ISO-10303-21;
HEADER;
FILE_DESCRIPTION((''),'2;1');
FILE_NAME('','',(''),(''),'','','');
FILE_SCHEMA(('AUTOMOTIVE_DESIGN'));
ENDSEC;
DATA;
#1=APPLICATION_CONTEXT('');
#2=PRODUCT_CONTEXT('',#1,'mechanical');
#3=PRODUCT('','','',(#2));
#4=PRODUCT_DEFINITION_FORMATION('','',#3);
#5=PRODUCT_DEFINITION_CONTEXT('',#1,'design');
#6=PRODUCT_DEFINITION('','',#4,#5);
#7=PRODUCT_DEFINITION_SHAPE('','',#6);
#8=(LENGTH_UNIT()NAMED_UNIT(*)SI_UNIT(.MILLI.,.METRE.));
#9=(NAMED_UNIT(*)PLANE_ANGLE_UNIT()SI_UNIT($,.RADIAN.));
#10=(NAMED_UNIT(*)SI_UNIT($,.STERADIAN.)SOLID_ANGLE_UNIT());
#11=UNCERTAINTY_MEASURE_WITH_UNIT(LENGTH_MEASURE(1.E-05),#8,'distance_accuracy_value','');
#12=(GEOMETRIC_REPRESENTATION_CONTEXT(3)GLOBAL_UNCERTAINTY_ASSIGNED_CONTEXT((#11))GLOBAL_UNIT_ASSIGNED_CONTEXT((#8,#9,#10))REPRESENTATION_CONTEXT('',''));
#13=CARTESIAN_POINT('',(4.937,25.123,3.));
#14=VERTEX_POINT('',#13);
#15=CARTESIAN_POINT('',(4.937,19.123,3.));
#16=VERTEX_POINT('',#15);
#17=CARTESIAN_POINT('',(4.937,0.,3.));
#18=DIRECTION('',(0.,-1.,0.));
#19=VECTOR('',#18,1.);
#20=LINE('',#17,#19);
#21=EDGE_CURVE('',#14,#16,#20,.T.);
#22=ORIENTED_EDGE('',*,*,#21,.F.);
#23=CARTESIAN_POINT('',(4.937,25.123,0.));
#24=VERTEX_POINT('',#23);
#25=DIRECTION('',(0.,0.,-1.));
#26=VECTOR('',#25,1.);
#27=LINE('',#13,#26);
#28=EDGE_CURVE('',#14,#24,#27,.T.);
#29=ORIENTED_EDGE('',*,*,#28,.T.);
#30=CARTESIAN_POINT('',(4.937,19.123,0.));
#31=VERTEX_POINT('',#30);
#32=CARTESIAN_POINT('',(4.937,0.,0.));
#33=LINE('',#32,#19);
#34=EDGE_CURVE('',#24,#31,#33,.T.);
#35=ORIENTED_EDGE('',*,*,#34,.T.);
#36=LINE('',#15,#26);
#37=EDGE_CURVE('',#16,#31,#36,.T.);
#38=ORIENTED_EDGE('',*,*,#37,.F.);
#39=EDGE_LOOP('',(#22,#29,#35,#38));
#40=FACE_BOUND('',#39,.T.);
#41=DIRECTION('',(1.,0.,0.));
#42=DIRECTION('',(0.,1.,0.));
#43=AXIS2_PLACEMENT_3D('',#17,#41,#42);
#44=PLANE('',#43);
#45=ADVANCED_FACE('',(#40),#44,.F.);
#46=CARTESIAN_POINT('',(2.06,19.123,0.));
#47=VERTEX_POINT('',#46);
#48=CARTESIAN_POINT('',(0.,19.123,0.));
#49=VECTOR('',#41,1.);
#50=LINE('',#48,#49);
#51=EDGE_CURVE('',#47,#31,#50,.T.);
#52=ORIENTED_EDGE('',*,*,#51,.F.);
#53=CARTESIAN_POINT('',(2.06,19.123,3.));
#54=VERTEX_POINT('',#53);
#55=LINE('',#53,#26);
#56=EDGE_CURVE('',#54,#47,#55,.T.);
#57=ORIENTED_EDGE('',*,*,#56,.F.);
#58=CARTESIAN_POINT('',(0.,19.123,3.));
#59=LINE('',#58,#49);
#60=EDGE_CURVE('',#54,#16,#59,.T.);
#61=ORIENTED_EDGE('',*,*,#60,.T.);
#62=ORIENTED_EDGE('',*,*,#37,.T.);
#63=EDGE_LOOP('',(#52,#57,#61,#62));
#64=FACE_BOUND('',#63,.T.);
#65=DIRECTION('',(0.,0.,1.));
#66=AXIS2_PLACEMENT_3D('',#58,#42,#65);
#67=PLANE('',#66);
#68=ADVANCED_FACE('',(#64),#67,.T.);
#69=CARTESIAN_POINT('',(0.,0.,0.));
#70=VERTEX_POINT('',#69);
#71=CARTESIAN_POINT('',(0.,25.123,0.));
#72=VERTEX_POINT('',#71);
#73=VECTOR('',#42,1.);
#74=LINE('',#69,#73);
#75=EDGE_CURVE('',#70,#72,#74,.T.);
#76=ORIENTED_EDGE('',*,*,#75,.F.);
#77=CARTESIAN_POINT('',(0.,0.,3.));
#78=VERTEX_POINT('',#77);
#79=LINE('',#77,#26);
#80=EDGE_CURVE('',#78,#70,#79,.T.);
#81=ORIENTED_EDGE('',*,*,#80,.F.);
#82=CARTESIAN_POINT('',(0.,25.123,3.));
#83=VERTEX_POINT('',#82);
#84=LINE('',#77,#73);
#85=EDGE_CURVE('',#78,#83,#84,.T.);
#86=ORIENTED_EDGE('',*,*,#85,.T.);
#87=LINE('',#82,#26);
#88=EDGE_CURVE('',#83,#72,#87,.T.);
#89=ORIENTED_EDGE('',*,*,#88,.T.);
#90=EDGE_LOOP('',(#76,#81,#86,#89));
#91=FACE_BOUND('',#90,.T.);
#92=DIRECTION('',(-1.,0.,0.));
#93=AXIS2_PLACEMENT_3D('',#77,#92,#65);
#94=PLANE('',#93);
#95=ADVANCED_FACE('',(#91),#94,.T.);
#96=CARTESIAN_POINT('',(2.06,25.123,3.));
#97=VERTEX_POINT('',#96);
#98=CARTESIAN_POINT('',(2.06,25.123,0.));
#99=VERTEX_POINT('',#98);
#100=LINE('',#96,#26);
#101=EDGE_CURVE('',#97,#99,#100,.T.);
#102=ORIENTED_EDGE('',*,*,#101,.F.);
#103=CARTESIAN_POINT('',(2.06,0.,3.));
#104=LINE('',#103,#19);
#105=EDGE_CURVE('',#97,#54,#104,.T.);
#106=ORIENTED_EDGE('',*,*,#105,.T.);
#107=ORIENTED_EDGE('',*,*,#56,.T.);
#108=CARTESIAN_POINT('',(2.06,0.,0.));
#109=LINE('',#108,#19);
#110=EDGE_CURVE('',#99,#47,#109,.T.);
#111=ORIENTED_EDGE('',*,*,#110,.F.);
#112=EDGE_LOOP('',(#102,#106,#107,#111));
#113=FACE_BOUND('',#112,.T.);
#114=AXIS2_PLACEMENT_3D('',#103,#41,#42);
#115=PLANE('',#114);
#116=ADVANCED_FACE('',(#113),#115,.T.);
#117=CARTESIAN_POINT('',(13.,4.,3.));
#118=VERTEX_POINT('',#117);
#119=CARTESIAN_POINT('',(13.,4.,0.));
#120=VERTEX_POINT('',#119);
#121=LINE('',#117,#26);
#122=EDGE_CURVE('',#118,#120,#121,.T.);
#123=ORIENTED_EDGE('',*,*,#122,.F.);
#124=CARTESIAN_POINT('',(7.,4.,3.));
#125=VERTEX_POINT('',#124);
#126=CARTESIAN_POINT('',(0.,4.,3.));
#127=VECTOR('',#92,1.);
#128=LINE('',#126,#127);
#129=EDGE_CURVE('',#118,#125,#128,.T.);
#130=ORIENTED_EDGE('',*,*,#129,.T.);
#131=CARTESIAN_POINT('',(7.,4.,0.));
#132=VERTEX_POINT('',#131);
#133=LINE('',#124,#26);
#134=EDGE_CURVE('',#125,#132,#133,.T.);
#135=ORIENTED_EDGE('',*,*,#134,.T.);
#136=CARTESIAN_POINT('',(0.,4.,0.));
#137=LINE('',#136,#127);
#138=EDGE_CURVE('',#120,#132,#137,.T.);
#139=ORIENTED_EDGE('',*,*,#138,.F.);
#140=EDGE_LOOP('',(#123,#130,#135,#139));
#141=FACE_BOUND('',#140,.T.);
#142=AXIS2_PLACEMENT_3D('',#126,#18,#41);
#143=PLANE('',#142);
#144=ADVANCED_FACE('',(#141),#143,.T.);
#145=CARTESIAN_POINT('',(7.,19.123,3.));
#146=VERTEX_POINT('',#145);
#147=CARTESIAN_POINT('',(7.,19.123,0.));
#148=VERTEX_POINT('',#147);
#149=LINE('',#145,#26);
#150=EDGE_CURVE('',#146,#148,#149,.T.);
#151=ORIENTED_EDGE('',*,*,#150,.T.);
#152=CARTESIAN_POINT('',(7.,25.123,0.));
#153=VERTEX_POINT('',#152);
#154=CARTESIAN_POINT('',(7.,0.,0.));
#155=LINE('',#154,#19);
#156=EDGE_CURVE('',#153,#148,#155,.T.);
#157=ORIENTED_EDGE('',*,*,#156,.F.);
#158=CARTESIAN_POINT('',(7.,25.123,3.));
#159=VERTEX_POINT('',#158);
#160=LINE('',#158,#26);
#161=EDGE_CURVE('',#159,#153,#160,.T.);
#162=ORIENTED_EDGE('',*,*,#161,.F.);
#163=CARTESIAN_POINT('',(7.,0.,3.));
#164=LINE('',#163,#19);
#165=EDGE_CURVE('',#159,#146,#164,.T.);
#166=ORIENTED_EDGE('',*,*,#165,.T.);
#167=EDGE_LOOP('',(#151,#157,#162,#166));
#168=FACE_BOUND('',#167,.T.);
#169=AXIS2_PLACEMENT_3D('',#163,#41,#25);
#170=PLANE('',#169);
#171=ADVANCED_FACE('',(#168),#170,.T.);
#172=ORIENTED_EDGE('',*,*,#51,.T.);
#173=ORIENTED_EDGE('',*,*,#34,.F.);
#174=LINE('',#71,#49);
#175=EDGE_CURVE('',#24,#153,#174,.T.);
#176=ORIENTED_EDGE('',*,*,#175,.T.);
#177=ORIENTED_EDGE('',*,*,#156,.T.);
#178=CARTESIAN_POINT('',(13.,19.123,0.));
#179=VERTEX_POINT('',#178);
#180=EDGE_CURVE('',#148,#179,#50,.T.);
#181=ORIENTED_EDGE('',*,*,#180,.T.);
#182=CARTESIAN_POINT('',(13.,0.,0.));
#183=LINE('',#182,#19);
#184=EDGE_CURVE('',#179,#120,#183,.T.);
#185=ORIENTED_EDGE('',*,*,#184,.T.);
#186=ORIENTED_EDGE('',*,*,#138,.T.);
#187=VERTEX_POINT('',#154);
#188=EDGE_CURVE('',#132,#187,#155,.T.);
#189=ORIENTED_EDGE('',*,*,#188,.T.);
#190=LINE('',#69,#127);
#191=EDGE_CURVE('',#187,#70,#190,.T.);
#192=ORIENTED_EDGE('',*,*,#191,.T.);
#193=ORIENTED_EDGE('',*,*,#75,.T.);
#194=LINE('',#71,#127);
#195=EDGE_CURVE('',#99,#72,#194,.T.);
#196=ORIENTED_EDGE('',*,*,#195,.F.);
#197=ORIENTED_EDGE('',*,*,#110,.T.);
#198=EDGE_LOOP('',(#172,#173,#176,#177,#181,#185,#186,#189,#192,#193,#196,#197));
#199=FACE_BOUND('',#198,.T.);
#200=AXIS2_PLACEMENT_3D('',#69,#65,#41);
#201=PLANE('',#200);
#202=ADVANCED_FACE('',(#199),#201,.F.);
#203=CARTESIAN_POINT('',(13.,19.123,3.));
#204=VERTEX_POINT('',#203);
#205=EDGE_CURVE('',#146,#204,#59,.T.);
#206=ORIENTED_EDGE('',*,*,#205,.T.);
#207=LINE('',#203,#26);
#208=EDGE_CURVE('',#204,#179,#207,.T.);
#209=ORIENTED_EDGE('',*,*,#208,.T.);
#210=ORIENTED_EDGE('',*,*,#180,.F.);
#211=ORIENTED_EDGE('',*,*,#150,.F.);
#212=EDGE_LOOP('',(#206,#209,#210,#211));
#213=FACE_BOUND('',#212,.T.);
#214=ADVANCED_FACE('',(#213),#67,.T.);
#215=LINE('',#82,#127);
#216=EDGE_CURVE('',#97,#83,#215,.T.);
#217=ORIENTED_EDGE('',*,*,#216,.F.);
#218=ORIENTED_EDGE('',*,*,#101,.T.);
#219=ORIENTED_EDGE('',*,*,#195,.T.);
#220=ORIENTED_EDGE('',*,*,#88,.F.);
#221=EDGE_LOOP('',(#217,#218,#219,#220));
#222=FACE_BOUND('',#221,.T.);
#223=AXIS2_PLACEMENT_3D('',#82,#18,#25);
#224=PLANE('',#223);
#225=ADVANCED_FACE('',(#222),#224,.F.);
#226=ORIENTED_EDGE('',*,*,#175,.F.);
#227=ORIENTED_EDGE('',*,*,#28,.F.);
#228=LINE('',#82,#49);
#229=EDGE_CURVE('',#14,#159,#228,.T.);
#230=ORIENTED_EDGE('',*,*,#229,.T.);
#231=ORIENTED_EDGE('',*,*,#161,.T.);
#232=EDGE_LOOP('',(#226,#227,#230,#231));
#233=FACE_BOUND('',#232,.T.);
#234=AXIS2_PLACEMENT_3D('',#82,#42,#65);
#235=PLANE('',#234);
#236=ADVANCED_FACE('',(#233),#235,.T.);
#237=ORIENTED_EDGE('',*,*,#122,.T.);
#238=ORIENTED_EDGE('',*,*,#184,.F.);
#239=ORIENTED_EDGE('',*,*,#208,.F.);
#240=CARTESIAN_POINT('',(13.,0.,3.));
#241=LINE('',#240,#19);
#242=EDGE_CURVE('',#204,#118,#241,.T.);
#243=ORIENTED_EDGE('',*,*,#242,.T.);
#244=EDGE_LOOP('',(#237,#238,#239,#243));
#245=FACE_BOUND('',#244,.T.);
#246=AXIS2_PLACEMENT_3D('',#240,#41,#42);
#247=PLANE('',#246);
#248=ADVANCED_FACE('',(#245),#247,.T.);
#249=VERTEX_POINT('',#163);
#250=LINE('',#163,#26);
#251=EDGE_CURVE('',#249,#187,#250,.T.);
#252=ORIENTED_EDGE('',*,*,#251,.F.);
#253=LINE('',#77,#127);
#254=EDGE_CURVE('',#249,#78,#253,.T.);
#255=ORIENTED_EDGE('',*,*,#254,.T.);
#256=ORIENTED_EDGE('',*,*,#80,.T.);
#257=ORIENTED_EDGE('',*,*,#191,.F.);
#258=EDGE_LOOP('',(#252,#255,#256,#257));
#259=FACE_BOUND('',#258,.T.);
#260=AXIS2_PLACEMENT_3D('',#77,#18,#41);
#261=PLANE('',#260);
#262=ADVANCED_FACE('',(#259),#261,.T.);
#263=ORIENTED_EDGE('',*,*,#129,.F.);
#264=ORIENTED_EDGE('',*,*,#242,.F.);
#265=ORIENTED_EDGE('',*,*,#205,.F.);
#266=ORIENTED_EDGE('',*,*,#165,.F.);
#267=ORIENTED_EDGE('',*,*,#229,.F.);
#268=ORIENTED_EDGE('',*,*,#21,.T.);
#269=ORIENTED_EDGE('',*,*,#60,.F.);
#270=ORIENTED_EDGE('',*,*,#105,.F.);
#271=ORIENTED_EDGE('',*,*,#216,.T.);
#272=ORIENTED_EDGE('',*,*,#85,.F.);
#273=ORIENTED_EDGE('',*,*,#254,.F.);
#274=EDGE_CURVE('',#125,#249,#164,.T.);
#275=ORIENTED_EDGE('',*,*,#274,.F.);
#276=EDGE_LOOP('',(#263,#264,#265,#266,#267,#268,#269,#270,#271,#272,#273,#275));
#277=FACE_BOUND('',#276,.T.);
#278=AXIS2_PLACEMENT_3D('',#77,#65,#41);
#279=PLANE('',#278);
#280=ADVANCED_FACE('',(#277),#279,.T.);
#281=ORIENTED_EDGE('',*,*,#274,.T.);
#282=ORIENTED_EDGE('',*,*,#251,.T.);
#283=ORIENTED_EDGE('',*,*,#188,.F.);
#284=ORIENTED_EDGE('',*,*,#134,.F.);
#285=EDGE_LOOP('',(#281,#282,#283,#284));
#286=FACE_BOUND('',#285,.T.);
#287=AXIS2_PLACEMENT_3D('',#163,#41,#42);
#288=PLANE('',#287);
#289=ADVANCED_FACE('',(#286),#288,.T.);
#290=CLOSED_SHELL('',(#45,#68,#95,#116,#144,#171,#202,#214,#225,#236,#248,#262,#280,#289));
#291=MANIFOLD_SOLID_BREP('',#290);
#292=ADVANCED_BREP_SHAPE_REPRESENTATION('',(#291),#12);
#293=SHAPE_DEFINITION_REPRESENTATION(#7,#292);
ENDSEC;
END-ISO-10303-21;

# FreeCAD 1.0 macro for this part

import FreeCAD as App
import Part
import Sketcher

doc = App.newDocument("Part")
params = doc.addObject("Spreadsheet::Sheet", "Params")
for row, (alias, value) in enumerate([
    ("sketch1_width", "7 mm"),
    ("sketch1_width2", "6 mm"),
    ("sketch1_height", "4 mm"),
    ("sketch1_width3", "2.06 mm"),
    ("pad1_length", "3 mm"),
], start=1):
    params.set(f"A{row}", alias)
    params.set(f"B{row}", "=" + value)
    params.setAlias(f"B{row}", alias)

body = doc.addObject("PartDesign::Body", "Body")

# Sketch on XY plane
sketch1 = body.newObject("Sketcher::SketchObject", "Sketch")
sketch1.AttachmentSupport = (doc.getObject("XY_Plane"), [""])
sketch1.MapMode = "FlatFace"
sketch1.addGeometry(Part.LineSegment(App.Vector(7, 25.123, 0), App.Vector(4.937, 25.123, 0)), False)
sketch1.addGeometry(Part.LineSegment(App.Vector(4.937, 25.123, 0), App.Vector(4.937, 19.123, 0)), False)
sketch1.addGeometry(Part.LineSegment(App.Vector(4.937, 19.123, 0), App.Vector(2.06, 19.123, 0)), False)
sketch1.addGeometry(Part.LineSegment(App.Vector(2.06, 19.123, 0), App.Vector(2.06, 25.123, 0)), False)
sketch1.addGeometry(Part.LineSegment(App.Vector(2.06, 25.123, 0), App.Vector(0, 25.123, 0)), False)
sketch1.addGeometry(Part.LineSegment(App.Vector(0, 25.123, 0), App.Vector(0, 0, 0)), False)
sketch1.addGeometry(Part.LineSegment(App.Vector(0, 0, 0), App.Vector(7, 0, 0)), False)
sketch1.addGeometry(Part.LineSegment(App.Vector(7, 0, 0), App.Vector(7, 4, 0)), False)
sketch1.addGeometry(Part.LineSegment(App.Vector(7, 4, 0), App.Vector(13, 4, 0)), False)
sketch1.addGeometry(Part.LineSegment(App.Vector(13, 4, 0), App.Vector(13, 19.123, 0)), False)
sketch1.addGeometry(Part.LineSegment(App.Vector(13, 19.123, 0), App.Vector(7, 19.123, 0)), False)
sketch1.addGeometry(Part.LineSegment(App.Vector(7, 19.123, 0), App.Vector(7, 25.123, 0)), False)
sketch1.addConstraint(Sketcher.Constraint("Coincident", 0, 2, 1, 1))
sketch1.addConstraint(Sketcher.Constraint("Coincident", 1, 2, 2, 1))
sketch1.addConstraint(Sketcher.Constraint("Coincident", 2, 2, 3, 1))
sketch1.addConstraint(Sketcher.Constraint("Coincident", 3, 2, 4, 1))
sketch1.addConstraint(Sketcher.Constraint("Coincident", 4, 2, 5, 1))
sketch1.addConstraint(Sketcher.Constraint("Coincident", 5, 2, 6, 1))
sketch1.addConstraint(Sketcher.Constraint("Coincident", 6, 2, 7, 1))
sketch1.addConstraint(Sketcher.Constraint("Coincident", 7, 2, 8, 1))
sketch1.addConstraint(Sketcher.Constraint("Coincident", 8, 2, 9, 1))
sketch1.addConstraint(Sketcher.Constraint("Coincident", 9, 2, 10, 1))
sketch1.addConstraint(Sketcher.Constraint("Coincident", 10, 2, 11, 1))
sketch1.addConstraint(Sketcher.Constraint("Coincident", 11, 2, 0, 1))
sketch1.addConstraint(Sketcher.Constraint("Horizontal", 0))
sketch1.addConstraint(Sketcher.Constraint("Vertical", 1))
sketch1.addConstraint(Sketcher.Constraint("Horizontal", 2))
sketch1.addConstraint(Sketcher.Constraint("Vertical", 3))
sketch1.addConstraint(Sketcher.Constraint("Horizontal", 4))
sketch1.addConstraint(Sketcher.Constraint("Vertical", 5))
sketch1.addConstraint(Sketcher.Constraint("Horizontal", 6))
sketch1.addConstraint(Sketcher.Constraint("Vertical", 7))
sketch1.addConstraint(Sketcher.Constraint("Horizontal", 8))
sketch1.addConstraint(Sketcher.Constraint("Vertical", 9))
sketch1.addConstraint(Sketcher.Constraint("Horizontal", 10))
sketch1.addConstraint(Sketcher.Constraint("Vertical", 11))
sketch1.addConstraint(Sketcher.Constraint("Coincident", 5, 2, -1, 1))
sketch1.addConstraint(Sketcher.Constraint("Horizontal", 0, 2, 3, 2))
sketch1.addConstraint(Sketcher.Constraint("Horizontal", 2, 2, 9, 2))
sketch1.addConstraint(Sketcher.Constraint("Vertical", 7, 2, 10, 2))
sketch1.addConstraint(Sketcher.Constraint("Equal", 10, 1))
sketch1.addConstraint(Sketcher.Constraint("DistanceX", 6, 1, 6, 2, 7.0))
sketch1.addConstraint(Sketcher.Constraint("DistanceX", 8, 1, 8, 2, 6.0))
sketch1.addConstraint(Sketcher.Constraint("DistanceY", 7, 1, 7, 2, 4.0))
sketch1.addConstraint(Sketcher.Constraint("DistanceX", 4, 2, 4, 1, 2.06))
sketch1.addConstraint(Sketcher.Constraint("DistanceX", 0, 2, 0, 1, 2.063))
sketch1.addConstraint(Sketcher.Constraint("DistanceY", 5, 2, 5, 1, 25.123))
sketch1.setExpression("Constraints[29]", "Params.sketch1_width")
sketch1.setExpression("Constraints[30]", "Params.sketch1_width2")
sketch1.setExpression("Constraints[31]", "Params.sketch1_height")
sketch1.setExpression("Constraints[32]", "Params.sketch1_width3")
pad1 = body.newObject("PartDesign::Pad", "Pad")
pad1.Profile = sketch1
pad1.setExpression("Length", "Params.pad1_length")

doc.recompute()
